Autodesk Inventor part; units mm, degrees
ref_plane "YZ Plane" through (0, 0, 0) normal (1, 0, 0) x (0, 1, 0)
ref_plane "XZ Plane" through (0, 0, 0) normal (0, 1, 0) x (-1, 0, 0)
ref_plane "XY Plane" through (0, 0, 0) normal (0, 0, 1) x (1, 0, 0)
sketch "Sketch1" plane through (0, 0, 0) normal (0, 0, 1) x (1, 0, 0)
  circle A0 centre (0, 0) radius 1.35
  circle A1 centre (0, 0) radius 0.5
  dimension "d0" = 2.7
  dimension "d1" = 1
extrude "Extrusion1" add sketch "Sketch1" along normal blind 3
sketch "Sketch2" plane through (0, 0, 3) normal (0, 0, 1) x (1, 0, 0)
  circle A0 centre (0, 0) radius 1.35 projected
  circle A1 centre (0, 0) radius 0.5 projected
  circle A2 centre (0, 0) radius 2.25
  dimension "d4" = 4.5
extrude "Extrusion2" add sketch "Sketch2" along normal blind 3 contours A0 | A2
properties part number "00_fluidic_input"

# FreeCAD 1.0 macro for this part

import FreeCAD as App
import Part
import Sketcher
from FreeCAD import Vector
Q = App.Units.Quantity

doc = App.newDocument("Part")
body = doc.addObject("PartDesign::Body", "Body")

sketch1 = body.newObject("Sketcher::SketchObject", "Sketch")
sketch1.AttachmentSupport = (doc.getObject("XY_Plane"), [""])
sketch1.MapMode = "FlatFace"
sketch1.addGeometry([
    Part.Circle(Vector(0, 0, 0), Vector(0, 0, 1), 1.35),
    Part.Circle(Vector(0, 0, 0), Vector(0, 0, 1), 0.5),
], False)
sketch1.addConstraint([
    Sketcher.Constraint("Coincident", 0, 3, -1, 1),
    Sketcher.Constraint("Coincident", 1, 3, -1, 1),
    Sketcher.Constraint("Diameter", 1, Q("1 mm")),
    Sketcher.Constraint("Diameter", 0, Q("2.7 mm")),
])
pad1 = body.newObject("PartDesign::Pad", "Pad")
pad1.Profile = sketch1
pad1.Length = 3

sketch2 = body.newObject("Sketcher::SketchObject", "Sketch001")
sketch2.AttachmentSupport = (doc.getObject("XY_Plane"), [""])
sketch2.MapMode = "FlatFace"
sketch2.AttachmentOffset = App.Placement(Vector(0, 0, 3), App.Rotation())
sketch2.addGeometry([
    Part.Circle(Vector(0, 0, 0), Vector(0, 0, 1), 2.25),
    Part.Circle(Vector(0, 0, 0), Vector(0, 0, 1), 0.5),
], False)
sketch2.addConstraint([
    Sketcher.Constraint("Coincident", 0, 3, -1, 1),
    Sketcher.Constraint("Coincident", 1, 3, -1, 1),
    Sketcher.Constraint("Diameter", 0, Q("4.5 mm")),
    Sketcher.Constraint("Diameter", 1, Q("1 mm")),
])
pad2 = body.newObject("PartDesign::Pad", "Pad001")
pad2.Profile = sketch2
pad2.Length = 3

doc.recompute()
